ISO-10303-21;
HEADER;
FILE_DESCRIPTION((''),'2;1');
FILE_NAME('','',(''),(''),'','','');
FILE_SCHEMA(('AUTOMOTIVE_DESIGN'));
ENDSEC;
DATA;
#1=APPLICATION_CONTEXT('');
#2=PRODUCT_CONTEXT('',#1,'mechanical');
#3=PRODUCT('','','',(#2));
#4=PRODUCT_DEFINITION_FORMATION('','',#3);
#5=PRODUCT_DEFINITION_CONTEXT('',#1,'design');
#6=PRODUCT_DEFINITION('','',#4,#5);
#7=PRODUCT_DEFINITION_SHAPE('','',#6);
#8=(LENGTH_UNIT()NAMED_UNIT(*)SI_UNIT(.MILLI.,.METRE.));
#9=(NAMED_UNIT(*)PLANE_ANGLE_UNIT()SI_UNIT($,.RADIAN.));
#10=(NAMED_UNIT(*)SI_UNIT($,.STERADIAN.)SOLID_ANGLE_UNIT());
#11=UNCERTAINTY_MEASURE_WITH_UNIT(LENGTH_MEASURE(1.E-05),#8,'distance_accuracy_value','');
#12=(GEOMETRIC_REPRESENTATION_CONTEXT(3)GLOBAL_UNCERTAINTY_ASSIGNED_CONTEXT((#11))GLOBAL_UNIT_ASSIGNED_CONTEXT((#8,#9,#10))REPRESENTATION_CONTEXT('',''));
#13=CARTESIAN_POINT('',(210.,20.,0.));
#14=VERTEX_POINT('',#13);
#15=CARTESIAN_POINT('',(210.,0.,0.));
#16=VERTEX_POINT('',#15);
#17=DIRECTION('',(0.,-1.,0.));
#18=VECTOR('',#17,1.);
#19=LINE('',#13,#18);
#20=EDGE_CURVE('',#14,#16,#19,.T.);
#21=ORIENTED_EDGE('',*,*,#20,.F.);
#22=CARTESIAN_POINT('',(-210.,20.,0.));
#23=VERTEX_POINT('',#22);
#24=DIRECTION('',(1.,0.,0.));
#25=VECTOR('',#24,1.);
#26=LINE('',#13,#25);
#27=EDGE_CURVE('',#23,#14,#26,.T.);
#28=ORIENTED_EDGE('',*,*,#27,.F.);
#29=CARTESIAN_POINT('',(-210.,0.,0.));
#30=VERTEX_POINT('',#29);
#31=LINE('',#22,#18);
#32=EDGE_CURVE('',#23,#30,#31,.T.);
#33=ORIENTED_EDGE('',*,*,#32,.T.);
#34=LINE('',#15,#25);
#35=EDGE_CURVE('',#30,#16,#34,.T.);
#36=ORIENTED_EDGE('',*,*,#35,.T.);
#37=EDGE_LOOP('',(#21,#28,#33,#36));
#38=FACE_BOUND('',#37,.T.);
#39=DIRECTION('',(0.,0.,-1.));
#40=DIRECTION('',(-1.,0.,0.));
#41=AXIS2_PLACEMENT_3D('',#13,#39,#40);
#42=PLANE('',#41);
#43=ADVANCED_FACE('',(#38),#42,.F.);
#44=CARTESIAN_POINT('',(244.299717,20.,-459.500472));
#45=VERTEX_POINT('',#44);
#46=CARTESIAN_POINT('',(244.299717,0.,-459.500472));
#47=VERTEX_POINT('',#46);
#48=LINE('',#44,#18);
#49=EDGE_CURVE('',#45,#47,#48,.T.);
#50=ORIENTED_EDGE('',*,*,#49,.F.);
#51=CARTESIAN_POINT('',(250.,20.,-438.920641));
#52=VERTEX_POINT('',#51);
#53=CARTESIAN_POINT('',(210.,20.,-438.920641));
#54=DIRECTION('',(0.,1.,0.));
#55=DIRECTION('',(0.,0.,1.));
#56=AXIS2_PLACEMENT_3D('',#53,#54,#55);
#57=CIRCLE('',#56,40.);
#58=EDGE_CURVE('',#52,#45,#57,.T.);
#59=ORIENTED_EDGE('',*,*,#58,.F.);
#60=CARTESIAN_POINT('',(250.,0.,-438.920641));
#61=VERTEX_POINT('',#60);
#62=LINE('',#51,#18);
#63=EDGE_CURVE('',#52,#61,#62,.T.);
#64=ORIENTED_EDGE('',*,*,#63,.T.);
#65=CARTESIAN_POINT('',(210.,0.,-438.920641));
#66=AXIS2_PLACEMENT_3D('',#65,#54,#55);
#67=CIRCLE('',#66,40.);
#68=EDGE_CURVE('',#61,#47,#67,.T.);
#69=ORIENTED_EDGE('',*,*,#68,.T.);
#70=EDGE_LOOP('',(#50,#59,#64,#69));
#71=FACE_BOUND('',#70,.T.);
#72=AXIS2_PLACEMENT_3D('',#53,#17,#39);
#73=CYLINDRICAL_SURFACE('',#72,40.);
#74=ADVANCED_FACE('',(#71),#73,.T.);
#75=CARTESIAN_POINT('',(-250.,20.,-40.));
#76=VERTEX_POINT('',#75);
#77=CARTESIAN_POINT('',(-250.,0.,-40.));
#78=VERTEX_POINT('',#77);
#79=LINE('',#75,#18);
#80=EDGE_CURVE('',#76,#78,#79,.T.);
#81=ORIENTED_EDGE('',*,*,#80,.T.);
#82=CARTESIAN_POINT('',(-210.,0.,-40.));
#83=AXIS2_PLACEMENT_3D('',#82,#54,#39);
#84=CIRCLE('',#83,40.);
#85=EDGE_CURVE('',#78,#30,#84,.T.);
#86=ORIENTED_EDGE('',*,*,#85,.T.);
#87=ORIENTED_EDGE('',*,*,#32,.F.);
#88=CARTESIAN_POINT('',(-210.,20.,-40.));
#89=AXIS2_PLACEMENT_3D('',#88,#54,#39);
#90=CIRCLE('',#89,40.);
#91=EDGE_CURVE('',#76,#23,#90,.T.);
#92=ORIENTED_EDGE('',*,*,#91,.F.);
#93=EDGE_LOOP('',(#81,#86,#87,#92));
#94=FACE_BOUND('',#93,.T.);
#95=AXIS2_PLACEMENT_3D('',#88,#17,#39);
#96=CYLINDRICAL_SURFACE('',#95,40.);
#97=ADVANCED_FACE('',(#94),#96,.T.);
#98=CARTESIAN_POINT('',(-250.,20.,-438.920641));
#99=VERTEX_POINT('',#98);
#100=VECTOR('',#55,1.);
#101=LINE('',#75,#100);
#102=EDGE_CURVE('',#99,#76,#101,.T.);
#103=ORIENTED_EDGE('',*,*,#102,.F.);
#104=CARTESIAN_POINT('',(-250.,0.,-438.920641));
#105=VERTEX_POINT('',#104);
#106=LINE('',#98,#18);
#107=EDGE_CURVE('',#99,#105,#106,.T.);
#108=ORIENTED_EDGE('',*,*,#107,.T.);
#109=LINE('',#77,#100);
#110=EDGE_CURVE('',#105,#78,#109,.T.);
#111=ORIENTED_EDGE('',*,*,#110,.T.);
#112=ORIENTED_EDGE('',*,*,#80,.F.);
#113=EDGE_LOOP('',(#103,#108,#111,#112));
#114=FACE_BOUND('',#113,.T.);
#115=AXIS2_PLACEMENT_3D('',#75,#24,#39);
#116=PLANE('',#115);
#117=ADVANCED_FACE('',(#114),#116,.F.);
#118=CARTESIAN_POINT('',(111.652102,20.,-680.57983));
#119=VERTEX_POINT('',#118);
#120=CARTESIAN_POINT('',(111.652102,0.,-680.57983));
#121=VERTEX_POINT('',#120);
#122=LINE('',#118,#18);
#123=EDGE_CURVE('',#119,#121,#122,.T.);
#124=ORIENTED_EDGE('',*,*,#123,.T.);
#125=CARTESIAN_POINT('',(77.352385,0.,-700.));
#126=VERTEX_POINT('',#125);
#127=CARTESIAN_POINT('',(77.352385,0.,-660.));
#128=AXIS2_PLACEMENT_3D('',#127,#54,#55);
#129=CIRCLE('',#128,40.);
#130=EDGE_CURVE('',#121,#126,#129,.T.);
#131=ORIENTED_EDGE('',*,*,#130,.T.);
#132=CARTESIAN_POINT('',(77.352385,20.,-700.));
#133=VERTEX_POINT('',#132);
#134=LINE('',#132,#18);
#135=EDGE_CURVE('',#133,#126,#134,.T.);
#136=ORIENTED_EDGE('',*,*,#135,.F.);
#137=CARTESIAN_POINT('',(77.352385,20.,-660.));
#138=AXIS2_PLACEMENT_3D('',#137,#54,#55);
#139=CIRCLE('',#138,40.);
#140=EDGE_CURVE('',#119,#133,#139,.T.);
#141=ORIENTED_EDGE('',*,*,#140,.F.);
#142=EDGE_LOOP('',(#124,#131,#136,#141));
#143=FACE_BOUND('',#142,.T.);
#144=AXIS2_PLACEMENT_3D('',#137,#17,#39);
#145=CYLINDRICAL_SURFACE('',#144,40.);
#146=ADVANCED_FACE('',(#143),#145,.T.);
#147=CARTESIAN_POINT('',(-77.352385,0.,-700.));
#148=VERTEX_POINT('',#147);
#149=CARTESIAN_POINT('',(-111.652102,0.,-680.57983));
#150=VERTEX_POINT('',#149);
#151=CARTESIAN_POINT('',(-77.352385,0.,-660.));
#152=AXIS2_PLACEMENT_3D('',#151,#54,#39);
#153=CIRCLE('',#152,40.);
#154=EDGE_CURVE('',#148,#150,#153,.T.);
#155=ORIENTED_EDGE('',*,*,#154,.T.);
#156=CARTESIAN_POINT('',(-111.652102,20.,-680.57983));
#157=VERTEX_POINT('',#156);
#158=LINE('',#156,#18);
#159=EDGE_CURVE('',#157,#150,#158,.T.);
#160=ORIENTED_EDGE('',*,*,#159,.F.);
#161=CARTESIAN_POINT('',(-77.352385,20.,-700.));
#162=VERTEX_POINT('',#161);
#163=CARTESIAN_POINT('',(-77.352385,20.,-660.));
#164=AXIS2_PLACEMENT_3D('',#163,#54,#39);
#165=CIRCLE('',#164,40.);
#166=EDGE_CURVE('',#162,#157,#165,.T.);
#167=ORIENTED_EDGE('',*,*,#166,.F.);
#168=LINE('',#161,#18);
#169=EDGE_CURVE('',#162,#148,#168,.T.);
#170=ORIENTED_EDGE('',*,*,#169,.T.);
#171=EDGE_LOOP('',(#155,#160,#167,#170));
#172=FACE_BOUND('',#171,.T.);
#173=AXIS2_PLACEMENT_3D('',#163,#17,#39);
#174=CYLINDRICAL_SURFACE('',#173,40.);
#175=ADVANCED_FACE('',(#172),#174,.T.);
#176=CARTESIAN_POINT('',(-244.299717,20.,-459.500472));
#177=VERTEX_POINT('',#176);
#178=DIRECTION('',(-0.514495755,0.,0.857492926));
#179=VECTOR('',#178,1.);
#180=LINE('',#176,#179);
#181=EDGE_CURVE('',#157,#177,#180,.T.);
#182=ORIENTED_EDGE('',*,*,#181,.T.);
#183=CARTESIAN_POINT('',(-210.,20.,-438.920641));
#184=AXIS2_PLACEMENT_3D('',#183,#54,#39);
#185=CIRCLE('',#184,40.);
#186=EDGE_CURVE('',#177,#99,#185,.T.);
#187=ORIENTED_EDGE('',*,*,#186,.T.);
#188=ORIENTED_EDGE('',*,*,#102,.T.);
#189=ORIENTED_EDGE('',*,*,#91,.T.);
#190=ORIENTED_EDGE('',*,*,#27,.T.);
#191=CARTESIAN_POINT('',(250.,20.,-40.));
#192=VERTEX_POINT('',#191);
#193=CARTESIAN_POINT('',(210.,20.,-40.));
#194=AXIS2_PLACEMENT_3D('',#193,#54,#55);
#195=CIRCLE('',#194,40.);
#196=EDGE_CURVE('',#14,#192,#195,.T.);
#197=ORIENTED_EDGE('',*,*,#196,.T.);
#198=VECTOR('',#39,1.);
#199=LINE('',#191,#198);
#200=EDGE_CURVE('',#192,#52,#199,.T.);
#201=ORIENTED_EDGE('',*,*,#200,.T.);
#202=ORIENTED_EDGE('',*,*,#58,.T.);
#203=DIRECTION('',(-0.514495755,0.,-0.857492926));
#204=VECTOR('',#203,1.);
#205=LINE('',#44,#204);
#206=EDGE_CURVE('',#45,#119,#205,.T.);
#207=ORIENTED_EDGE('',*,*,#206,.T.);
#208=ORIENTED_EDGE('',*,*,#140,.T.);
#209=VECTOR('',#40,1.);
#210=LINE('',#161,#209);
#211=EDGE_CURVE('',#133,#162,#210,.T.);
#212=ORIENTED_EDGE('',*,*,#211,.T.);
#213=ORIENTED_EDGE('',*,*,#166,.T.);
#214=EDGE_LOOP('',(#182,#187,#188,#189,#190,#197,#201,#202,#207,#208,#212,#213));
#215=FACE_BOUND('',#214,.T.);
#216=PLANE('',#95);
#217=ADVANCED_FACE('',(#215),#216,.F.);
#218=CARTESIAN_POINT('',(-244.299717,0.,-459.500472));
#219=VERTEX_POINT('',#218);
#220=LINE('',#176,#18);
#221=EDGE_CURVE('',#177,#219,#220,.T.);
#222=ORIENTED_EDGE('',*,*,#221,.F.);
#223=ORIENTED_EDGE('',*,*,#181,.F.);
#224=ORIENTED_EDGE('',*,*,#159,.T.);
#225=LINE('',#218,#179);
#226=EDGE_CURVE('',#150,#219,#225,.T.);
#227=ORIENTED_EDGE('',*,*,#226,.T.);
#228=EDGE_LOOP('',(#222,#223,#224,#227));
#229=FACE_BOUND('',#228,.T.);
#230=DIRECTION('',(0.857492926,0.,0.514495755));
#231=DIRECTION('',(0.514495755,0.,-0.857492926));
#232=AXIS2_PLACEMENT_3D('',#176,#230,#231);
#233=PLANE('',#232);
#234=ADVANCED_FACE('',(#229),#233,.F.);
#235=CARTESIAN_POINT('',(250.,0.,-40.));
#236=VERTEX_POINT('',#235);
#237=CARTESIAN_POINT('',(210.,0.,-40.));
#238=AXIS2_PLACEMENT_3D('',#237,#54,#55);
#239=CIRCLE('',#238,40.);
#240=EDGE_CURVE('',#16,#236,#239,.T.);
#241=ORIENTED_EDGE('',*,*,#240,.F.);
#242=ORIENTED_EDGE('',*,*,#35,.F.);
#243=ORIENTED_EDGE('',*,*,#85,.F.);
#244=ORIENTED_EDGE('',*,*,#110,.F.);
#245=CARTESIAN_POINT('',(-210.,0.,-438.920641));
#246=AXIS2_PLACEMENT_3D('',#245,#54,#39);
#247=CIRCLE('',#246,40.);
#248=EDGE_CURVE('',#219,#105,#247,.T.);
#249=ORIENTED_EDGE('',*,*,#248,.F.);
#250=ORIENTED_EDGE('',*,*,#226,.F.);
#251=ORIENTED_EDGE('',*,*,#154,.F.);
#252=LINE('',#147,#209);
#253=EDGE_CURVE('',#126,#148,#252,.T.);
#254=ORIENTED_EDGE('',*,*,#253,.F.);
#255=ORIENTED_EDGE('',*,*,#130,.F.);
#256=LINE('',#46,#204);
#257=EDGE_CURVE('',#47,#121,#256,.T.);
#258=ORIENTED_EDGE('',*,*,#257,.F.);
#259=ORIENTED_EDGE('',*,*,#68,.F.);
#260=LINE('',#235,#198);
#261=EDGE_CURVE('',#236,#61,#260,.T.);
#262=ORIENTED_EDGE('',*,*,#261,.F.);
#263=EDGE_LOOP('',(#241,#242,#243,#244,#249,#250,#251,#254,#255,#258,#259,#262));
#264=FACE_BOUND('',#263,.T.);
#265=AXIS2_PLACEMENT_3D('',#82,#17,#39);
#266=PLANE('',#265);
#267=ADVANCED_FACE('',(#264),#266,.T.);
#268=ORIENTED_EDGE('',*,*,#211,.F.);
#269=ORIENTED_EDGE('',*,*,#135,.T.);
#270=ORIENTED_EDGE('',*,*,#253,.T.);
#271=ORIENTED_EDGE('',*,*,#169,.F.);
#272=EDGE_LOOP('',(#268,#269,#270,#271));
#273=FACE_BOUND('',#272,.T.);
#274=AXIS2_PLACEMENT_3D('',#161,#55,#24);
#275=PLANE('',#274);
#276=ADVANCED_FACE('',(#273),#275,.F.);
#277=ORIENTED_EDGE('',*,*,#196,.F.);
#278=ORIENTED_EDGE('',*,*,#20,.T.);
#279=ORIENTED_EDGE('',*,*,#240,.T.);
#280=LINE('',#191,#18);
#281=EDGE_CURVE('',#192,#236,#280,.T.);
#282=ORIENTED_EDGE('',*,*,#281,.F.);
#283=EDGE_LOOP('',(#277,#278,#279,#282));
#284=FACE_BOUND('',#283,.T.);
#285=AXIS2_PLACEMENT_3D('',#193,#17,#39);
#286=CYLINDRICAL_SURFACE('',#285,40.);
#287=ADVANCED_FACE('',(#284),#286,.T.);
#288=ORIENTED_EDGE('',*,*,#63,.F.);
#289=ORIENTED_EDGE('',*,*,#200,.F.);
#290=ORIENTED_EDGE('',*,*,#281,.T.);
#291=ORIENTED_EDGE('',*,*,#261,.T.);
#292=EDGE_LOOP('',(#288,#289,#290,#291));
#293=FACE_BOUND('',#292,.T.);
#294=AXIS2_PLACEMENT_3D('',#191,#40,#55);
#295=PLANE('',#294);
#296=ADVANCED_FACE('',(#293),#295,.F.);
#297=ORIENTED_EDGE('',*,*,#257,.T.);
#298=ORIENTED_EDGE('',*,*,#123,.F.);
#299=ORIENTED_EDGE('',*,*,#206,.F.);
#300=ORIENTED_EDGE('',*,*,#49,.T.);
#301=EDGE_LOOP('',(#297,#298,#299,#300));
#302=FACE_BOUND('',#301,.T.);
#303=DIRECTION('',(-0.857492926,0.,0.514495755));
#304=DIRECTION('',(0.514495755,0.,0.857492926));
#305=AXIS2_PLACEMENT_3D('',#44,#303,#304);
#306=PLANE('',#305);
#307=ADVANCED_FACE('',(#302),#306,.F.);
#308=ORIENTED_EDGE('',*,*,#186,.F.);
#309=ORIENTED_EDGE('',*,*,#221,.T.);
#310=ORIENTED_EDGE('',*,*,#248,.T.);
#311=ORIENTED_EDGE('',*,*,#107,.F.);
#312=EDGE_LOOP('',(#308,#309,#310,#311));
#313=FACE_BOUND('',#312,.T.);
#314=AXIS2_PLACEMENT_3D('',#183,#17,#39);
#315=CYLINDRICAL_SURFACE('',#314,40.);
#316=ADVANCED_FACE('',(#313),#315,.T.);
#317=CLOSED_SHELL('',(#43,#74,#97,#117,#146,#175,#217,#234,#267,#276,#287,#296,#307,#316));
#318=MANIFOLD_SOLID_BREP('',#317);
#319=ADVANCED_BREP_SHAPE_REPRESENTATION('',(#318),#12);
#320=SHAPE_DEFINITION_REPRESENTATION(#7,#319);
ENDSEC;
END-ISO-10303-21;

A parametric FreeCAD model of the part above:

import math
import FreeCAD as App
import Part
import Sketcher

V = App.Vector

doc = App.newDocument("Part")
body = doc.addObject("PartDesign::Body", "Body")

sketch1 = body.newObject("Sketcher::SketchObject", "Sketch")
sketch1.AttachmentSupport = (doc.getObject("XZ_Plane"), [""])
sketch1.MapMode = "FlatFace"
sketch1.addGeometry([
    Part.LineSegment(V(-210, 0, 0), V(210, 0, 0)),
    Part.ArcOfCircle(Part.Circle(V(210, -40, 0), V(0, 0, 1), 40), math.radians(0), math.radians(90)),
    Part.LineSegment(V(250, -40, 0), V(250, -439, 0)),
    Part.ArcOfCircle(Part.Circle(V(210, -439, 0), V(0, 0, 1), 40), math.radians(-31), math.radians(0)),
    Part.LineSegment(V(244, -460, 0), V(112, -681, 0)),
    Part.ArcOfCircle(Part.Circle(V(77, -660, 0), V(0, 0, 1), 40), math.radians(-90), math.radians(-31)),
    Part.LineSegment(V(77, -700, 0), V(-77, -700, 0)),
    Part.ArcOfCircle(Part.Circle(V(-77, -660, 0), V(0, 0, 1), 40), math.radians(-149), math.radians(-90)),
    Part.LineSegment(V(-112, -681, 0), V(-244, -460, 0)),
    Part.ArcOfCircle(Part.Circle(V(-210, -439, 0), V(0, 0, 1), 40), math.radians(-180), math.radians(-149)),
    Part.LineSegment(V(-250, -439, 0), V(-250, -40, 0)),
    Part.ArcOfCircle(Part.Circle(V(-210, -40, 0), V(0, 0, 1), 40), math.radians(90), math.radians(180)),
], False)
sketch1.addConstraint([
    Sketcher.Constraint("Tangent", 0, 2, 1, 2),
    Sketcher.Constraint("Tangent", 1, 1, 2, 1),
    Sketcher.Constraint("Tangent", 2, 2, 3, 2),
    Sketcher.Constraint("Tangent", 3, 1, 4, 1),
    Sketcher.Constraint("Tangent", 4, 2, 5, 2),
    Sketcher.Constraint("Tangent", 5, 1, 6, 1),
    Sketcher.Constraint("Tangent", 6, 2, 7, 2),
    Sketcher.Constraint("Tangent", 7, 1, 8, 1),
    Sketcher.Constraint("Tangent", 8, 2, 9, 2),
    Sketcher.Constraint("Tangent", 9, 1, 10, 1),
    Sketcher.Constraint("Tangent", 10, 2, 11, 2),
    Sketcher.Constraint("Tangent", 11, 1, 0, 1),
    Sketcher.Constraint("Horizontal", 0),
    Sketcher.Constraint("Vertical", 2),
    Sketcher.Constraint("Horizontal", 6),
    Sketcher.Constraint("Vertical", 10),
    Sketcher.Constraint("Equal", 1, 3),
    Sketcher.Constraint("Equal", 3, 5),
    Sketcher.Constraint("Equal", 5, 7),
    Sketcher.Constraint("Equal", 7, 9),
    Sketcher.Constraint("Equal", 9, 11),
    Sketcher.Constraint("Symmetric", 0, 2, 11, 1, -1, 1),
    Sketcher.Constraint("Symmetric", 3, 1, 8, 2, -2),
    Sketcher.Constraint("Radius", 1, 40.0),
    Sketcher.Constraint("DistanceX", 0, 1, 0, 2, 420.0),
    Sketcher.Constraint("DistanceY", 5, 3, -1, 1, 660.0),
    Sketcher.Constraint("DistanceX", 6, 2, 6, 1, 154.70477),
    Sketcher.Constraint("DistanceY", 2, 2, 2, 1, 398.920641),
])
pad1 = body.newObject("PartDesign::Pad", "Pad")
pad1.Profile = sketch1
pad1.Length = 20
pad1.Reversed = True

doc.recompute()
